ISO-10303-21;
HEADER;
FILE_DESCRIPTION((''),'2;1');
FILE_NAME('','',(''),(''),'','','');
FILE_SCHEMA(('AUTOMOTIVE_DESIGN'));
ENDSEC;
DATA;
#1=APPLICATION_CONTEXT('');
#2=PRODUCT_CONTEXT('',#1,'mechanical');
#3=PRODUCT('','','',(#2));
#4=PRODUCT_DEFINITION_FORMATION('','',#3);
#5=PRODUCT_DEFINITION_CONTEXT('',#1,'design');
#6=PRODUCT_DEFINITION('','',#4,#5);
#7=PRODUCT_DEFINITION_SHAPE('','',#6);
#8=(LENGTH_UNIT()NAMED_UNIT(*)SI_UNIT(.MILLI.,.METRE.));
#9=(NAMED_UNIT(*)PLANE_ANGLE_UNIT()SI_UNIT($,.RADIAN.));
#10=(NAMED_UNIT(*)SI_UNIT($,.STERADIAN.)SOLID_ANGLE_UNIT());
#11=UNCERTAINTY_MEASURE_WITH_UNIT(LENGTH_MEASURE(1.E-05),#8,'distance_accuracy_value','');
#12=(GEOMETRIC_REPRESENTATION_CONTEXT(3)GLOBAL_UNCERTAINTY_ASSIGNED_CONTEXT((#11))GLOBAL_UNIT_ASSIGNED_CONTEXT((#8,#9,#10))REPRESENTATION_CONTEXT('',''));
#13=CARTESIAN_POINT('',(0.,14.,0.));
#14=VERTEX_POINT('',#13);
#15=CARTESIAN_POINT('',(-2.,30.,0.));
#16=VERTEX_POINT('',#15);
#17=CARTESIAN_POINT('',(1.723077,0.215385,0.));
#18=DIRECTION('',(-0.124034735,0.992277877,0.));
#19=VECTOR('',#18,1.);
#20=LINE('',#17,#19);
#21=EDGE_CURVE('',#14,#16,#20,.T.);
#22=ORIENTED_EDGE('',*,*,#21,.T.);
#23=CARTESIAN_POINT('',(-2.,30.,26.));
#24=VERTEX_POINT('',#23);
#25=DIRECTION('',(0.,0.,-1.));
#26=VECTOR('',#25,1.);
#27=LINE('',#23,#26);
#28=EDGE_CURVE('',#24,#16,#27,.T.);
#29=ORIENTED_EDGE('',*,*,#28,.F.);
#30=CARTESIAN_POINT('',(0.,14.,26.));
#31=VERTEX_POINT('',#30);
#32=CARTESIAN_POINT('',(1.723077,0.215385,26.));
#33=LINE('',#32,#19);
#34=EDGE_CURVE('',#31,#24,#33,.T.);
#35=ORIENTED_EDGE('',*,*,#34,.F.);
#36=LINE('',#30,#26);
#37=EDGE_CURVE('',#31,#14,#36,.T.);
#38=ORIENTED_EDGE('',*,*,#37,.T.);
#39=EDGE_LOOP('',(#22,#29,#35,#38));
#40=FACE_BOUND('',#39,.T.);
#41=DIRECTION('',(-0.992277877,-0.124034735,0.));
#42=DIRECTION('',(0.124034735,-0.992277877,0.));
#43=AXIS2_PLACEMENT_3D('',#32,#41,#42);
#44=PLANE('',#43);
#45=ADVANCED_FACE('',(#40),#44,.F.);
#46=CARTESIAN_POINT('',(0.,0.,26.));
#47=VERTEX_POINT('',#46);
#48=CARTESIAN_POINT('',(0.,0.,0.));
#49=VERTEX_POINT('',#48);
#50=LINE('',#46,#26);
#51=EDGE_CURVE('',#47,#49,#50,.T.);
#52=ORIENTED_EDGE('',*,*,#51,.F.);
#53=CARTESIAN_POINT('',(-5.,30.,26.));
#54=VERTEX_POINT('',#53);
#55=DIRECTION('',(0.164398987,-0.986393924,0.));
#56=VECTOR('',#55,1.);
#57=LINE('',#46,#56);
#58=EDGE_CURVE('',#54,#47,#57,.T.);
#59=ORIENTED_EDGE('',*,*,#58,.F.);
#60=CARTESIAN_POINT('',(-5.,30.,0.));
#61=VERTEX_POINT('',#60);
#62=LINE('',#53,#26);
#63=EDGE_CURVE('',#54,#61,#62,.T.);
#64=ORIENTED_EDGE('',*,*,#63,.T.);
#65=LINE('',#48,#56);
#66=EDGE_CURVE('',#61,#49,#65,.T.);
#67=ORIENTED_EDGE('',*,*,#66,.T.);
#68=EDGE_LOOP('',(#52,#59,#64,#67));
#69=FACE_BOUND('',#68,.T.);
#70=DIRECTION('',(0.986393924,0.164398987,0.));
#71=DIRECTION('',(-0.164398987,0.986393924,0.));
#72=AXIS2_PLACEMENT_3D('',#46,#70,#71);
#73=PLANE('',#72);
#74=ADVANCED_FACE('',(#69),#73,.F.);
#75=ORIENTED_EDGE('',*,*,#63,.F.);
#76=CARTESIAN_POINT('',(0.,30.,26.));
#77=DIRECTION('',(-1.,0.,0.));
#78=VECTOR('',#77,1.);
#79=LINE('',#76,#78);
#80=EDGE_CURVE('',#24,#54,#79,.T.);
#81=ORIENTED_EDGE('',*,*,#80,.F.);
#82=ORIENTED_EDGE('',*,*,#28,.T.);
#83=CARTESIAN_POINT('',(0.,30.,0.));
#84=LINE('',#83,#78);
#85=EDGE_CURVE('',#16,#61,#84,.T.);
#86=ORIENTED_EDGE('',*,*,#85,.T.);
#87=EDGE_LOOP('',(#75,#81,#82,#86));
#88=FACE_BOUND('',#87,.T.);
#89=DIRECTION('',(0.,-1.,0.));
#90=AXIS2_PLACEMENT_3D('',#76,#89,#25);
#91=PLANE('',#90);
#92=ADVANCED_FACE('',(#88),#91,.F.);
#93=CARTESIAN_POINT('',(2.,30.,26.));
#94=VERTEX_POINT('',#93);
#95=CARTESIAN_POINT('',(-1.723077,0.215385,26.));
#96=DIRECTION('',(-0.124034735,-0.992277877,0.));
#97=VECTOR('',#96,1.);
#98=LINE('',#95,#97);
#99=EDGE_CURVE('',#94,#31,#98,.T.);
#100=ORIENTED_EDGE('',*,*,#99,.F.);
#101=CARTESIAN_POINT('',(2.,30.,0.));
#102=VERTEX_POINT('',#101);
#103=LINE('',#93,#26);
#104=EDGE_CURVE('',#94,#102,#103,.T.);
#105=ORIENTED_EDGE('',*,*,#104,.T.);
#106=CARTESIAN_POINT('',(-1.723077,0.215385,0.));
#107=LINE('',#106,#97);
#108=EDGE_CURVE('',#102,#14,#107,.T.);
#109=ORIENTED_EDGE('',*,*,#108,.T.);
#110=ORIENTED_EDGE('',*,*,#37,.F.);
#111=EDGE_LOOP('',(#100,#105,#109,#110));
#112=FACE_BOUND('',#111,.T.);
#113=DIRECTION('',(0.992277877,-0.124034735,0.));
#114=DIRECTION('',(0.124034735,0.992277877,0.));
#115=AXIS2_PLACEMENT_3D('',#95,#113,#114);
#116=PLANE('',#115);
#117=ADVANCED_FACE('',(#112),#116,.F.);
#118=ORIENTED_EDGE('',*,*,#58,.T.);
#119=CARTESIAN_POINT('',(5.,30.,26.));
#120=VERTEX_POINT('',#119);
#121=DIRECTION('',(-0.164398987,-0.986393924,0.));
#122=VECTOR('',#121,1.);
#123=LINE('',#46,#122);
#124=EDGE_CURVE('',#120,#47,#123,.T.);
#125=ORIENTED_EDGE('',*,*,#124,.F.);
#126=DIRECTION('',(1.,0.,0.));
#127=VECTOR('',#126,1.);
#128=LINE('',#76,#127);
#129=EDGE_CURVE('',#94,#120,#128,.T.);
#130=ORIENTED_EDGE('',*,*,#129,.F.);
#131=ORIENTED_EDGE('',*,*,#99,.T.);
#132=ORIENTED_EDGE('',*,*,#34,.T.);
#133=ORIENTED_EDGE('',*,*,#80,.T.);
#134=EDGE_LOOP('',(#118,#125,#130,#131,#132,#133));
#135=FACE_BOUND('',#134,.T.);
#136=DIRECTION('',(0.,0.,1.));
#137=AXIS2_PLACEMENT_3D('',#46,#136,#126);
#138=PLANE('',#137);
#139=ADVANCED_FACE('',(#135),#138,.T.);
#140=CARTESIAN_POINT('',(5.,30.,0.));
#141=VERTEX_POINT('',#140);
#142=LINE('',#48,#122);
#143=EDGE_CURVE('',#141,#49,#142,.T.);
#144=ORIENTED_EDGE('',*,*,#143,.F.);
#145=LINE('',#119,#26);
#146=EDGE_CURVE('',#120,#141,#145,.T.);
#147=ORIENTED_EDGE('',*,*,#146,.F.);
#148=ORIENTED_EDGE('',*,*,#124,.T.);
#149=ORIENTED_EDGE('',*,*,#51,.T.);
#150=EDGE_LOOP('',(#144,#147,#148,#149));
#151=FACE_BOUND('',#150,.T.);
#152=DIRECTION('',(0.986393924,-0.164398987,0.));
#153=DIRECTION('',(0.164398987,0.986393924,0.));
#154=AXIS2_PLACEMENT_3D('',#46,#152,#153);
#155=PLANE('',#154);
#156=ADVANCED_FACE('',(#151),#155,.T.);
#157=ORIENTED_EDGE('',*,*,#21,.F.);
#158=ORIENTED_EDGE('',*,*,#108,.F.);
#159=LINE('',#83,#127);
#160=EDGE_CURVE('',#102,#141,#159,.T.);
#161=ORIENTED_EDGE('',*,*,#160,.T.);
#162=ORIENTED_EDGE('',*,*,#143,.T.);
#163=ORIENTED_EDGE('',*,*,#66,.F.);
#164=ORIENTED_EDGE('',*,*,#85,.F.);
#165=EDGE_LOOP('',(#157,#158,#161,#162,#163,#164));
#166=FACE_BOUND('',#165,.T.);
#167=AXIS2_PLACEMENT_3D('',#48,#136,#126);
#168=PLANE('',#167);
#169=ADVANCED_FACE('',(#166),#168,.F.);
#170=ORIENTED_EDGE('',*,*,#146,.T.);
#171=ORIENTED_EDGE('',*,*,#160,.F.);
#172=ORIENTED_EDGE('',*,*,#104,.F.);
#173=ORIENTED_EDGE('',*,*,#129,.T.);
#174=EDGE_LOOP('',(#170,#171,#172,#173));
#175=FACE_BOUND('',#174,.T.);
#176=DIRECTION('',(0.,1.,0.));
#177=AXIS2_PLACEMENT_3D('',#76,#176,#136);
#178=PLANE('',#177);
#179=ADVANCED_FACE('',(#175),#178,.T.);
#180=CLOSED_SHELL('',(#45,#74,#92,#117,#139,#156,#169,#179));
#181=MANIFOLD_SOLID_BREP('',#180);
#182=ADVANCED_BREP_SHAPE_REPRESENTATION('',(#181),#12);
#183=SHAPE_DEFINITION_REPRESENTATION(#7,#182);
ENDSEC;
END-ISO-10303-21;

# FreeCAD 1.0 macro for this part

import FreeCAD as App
import Part
import Sketcher
from FreeCAD import Vector
Q = App.Units.Quantity

doc = App.newDocument("Part")
params = doc.addObject("Spreadsheet::Sheet", "Params")
for row, (alias, value) in enumerate([
    ("sketch1_width", "3 mm"),
    ("pad1_length", "26 mm"),
], start=1):
    params.set(f"A{row}", alias)
    params.set(f"B{row}", "=" + value)
    params.setAlias(f"B{row}", alias)

body = doc.addObject("PartDesign::Body", "Body")

# Sketch on XY plane
sketch1 = body.newObject("Sketcher::SketchObject", "Sketch")
sketch1.AttachmentSupport = (doc.getObject("XY_Plane"), [""])
sketch1.MapMode = "FlatFace"
sketch1.addGeometry(Part.LineSegment(Vector(5, 30, 0), Vector(2, 30, 0)), False)
sketch1.addGeometry(Part.LineSegment(Vector(2, 30, 0), Vector(0, 14, 0)), False)
sketch1.addGeometry(Part.LineSegment(Vector(0, 14, 0), Vector(-2, 30, 0)), False)
sketch1.addGeometry(Part.LineSegment(Vector(-2, 30, 0), Vector(-5, 30, 0)), False)
sketch1.addGeometry(Part.LineSegment(Vector(-5, 30, 0), Vector(0, 0, 0)), False)
sketch1.addGeometry(Part.LineSegment(Vector(0, 0, 0), Vector(5, 30, 0)), False)
sketch1.addConstraint(Sketcher.Constraint("Coincident", 0, 2, 1, 1))
sketch1.addConstraint(Sketcher.Constraint("Coincident", 1, 2, 2, 1))
sketch1.addConstraint(Sketcher.Constraint("Coincident", 2, 2, 3, 1))
sketch1.addConstraint(Sketcher.Constraint("Coincident", 3, 2, 4, 1))
sketch1.addConstraint(Sketcher.Constraint("Coincident", 4, 2, 5, 1))
sketch1.addConstraint(Sketcher.Constraint("Coincident", 5, 2, 0, 1))
sketch1.addConstraint(Sketcher.Constraint("Horizontal", 0))
sketch1.addConstraint(Sketcher.Constraint("Horizontal", 3))
sketch1.addConstraint(Sketcher.Constraint("Coincident", 4, 2, -1, 1))
sketch1.addConstraint(Sketcher.Constraint("Symmetric", 0, 2, 2, 2, -2))
sketch1.addConstraint(Sketcher.Constraint("PointOnObject", 1, 2, -2))
sketch1.addConstraint(Sketcher.Constraint("Equal", 0, 3))
sketch1.addConstraint(Sketcher.Constraint("DistanceX", 0, 2, 0, 1, Q("3 mm")))
sketch1.addConstraint(Sketcher.Constraint("DistanceX", -1, 1, 0, 2, Q("2 mm")))
sketch1.addConstraint(Sketcher.Constraint("DistanceY", -1, 1, 0, 2, Q("30 mm")))
sketch1.addConstraint(Sketcher.Constraint("DistanceY", -1, 1, 1, 2, Q("14 mm")))
sketch1.setExpression("Constraints[12]", "Params.sketch1_width")
pad1 = body.newObject("PartDesign::Pad", "Pad")
pad1.Profile = sketch1
pad1.setExpression("Length", "Params.pad1_length")

doc.recompute()
